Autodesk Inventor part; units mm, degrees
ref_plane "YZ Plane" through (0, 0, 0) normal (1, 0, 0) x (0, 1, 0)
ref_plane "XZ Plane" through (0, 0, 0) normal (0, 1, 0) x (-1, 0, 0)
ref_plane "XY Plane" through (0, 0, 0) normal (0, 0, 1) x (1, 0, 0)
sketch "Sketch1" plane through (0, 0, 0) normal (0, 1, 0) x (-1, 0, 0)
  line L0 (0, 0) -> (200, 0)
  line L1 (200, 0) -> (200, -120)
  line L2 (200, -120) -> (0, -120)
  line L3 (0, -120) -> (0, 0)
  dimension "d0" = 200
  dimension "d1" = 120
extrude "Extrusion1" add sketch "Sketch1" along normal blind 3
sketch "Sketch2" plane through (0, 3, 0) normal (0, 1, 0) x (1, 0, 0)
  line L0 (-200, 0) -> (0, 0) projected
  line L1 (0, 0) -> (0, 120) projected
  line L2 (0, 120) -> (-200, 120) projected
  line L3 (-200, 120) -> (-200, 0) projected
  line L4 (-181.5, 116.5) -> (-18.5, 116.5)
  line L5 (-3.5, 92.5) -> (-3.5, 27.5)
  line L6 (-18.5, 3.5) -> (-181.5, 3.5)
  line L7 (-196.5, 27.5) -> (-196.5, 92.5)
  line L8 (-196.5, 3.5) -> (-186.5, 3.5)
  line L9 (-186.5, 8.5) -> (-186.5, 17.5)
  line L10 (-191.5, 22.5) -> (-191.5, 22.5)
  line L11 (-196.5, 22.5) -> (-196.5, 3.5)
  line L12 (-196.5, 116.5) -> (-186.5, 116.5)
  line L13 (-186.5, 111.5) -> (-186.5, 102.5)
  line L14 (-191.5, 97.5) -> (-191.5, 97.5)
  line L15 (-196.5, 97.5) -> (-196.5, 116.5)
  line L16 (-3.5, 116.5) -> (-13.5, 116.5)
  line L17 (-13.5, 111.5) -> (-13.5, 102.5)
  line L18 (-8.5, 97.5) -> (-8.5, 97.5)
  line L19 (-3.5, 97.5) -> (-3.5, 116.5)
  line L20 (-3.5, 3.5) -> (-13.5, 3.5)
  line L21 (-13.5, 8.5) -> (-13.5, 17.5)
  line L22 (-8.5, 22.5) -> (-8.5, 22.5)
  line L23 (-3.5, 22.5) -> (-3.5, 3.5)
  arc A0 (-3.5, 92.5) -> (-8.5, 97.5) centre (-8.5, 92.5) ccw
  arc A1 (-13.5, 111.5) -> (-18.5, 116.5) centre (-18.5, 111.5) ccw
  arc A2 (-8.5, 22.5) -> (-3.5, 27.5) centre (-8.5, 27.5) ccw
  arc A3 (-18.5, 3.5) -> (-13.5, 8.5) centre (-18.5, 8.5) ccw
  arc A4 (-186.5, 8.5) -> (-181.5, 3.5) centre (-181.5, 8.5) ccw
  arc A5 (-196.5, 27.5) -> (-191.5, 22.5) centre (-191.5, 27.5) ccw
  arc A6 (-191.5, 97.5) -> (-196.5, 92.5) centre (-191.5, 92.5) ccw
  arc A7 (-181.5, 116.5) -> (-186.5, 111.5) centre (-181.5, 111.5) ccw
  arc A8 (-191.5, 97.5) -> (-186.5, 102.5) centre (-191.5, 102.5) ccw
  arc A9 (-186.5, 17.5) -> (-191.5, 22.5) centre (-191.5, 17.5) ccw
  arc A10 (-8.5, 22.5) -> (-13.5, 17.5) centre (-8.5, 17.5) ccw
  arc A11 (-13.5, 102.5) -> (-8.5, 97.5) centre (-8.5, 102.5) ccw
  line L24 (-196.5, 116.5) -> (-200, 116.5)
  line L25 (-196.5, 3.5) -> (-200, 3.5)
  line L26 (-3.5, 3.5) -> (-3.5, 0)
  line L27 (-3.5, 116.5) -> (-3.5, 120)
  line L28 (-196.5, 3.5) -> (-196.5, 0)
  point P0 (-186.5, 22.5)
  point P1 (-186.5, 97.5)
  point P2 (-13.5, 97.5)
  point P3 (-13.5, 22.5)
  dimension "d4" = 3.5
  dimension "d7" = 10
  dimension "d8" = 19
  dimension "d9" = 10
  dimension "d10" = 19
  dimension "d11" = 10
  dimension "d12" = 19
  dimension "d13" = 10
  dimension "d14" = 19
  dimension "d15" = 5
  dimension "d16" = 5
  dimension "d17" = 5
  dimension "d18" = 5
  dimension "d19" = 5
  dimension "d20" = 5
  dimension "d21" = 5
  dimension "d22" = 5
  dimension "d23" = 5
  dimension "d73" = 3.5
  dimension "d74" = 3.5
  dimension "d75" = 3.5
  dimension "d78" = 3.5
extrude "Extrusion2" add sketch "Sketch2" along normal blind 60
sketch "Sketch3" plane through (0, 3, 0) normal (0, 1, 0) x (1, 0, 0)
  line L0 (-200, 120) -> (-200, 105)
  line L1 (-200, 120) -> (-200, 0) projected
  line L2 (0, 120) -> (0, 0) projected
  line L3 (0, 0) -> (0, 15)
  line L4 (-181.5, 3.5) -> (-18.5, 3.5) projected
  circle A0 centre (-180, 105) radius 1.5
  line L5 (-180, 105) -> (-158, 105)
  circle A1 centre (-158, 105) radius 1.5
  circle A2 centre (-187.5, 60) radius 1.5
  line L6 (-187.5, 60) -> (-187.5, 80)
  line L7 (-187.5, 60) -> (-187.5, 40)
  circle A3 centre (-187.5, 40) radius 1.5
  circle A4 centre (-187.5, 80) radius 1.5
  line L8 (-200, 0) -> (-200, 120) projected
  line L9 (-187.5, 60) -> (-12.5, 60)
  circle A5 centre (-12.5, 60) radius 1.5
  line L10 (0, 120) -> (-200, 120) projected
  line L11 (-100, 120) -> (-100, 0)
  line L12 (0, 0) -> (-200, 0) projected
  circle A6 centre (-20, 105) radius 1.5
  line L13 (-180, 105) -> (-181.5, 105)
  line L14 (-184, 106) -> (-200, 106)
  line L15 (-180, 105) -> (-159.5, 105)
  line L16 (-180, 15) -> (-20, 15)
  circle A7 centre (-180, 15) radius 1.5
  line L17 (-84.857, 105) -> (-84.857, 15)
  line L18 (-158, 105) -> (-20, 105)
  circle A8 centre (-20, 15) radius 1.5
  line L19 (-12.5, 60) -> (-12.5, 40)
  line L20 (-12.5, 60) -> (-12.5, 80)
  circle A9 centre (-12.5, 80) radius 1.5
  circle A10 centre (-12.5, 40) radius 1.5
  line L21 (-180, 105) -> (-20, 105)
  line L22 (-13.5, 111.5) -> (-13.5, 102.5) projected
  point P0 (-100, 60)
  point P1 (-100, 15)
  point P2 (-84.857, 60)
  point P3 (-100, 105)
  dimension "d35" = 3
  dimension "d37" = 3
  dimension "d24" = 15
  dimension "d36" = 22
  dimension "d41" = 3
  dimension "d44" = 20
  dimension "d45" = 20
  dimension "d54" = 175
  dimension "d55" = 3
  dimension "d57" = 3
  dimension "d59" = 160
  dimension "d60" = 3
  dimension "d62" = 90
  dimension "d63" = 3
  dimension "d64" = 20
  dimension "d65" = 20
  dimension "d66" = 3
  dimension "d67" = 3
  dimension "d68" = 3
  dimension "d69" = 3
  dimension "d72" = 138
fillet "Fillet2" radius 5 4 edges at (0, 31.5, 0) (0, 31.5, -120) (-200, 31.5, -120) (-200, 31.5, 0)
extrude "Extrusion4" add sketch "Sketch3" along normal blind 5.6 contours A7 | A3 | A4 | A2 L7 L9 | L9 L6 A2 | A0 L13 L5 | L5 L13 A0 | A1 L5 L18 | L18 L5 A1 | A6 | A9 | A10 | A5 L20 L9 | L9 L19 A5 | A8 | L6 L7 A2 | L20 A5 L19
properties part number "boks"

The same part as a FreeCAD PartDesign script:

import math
import FreeCAD as App
import Part
import Sketcher

V = App.Vector
Q = App.Units.Quantity


def edges_at(feature, points):
    """Names of the edges that pass closest to the given points."""
    edges = feature.Shape.Edges
    near = lambda p: min(range(len(edges)), key=lambda i: edges[i].distToShape(Part.Vertex(*p))[0])
    return sorted({f"Edge{near(p) + 1}" for p in points})

doc = App.newDocument("Part")
body = doc.addObject("PartDesign::Body", "Body")

# Sketch on XZ plane
sketch1 = body.newObject("Sketcher::SketchObject", "Sketch")
sketch1.AttachmentSupport = (doc.getObject("XZ_Plane"), [""])
sketch1.MapMode = "FlatFace"
sketch1.addGeometry(Part.LineSegment(V(-200, 0, 0), V(0, 0, 0)), False)
sketch1.addGeometry(Part.LineSegment(V(0, 0, 0), V(0, -120, 0)), False)
sketch1.addGeometry(Part.LineSegment(V(0, -120, 0), V(-200, -120, 0)), False)
sketch1.addGeometry(Part.LineSegment(V(-200, -120, 0), V(-200, 0, 0)), False)
sketch1.addConstraint(Sketcher.Constraint("Coincident", 0, 2, 1, 1))
sketch1.addConstraint(Sketcher.Constraint("Coincident", 1, 2, 2, 1))
sketch1.addConstraint(Sketcher.Constraint("Coincident", 2, 2, 3, 1))
sketch1.addConstraint(Sketcher.Constraint("Coincident", 3, 2, 0, 1))
sketch1.addConstraint(Sketcher.Constraint("Horizontal", 0))
sketch1.addConstraint(Sketcher.Constraint("Vertical", 1))
sketch1.addConstraint(Sketcher.Constraint("Horizontal", 2))
sketch1.addConstraint(Sketcher.Constraint("Vertical", 3))
sketch1.addConstraint(Sketcher.Constraint("Coincident", 0, 2, -1, 1))
sketch1.addConstraint(Sketcher.Constraint("DistanceX", 0, 1, 0, 2, Q("200 mm")))
sketch1.addConstraint(Sketcher.Constraint("DistanceY", 1, 2, 1, 1, Q("120 mm")))
pad1 = body.newObject("PartDesign::Pad", "Pad")
pad1.Profile = sketch1
pad1.Length = 3
pad1.Reversed = True

# Sketch on XZ plane
sketch2 = body.newObject("Sketcher::SketchObject", "Sketch001")
sketch2.AttachmentSupport = (doc.getObject("XZ_Plane"), [""])
sketch2.MapMode = "FlatFace"
sketch2.AttachmentOffset = App.Placement(V(0, 0, -3), App.Rotation())
sketch2.addGeometry(Part.LineSegment(V(-200, 0, 0), V(0, 0, 0)), False)
sketch2.addGeometry(Part.LineSegment(V(0, 0, 0), V(0, -120, 0)), False)
sketch2.addGeometry(Part.LineSegment(V(0, -120, 0), V(-200, -120, 0)), False)
sketch2.addGeometry(Part.LineSegment(V(-200, -120, 0), V(-200, 0, 0)), False)
sketch2.addGeometry(Part.ArcOfCircle(Part.Circle(V(-18, -112, 0), V(0, 0, 1), 5), math.radians(-90), math.radians(0)), False)
sketch2.addGeometry(Part.LineSegment(V(-14, -112, 0), V(-14, -102, 0)), False)
sketch2.addGeometry(Part.ArcOfCircle(Part.Circle(V(-8, -102, 0), V(0, 0, 1), 5), math.radians(90), math.radians(180)), False)
sketch2.addGeometry(Part.ArcOfCircle(Part.Circle(V(-8, -92, 0), V(0, 0, 1), 5), math.radians(-90), math.radians(0)), False)
sketch2.addGeometry(Part.LineSegment(V(-4, -92, 0), V(-4, -28, 0)), False)
sketch2.addGeometry(Part.ArcOfCircle(Part.Circle(V(-8, -28, 0), V(0, 0, 1), 5), math.radians(0), math.radians(90)), False)
sketch2.addGeometry(Part.ArcOfCircle(Part.Circle(V(-8, -18, 0), V(0, 0, 1), 5), math.radians(180), math.radians(270)), False)
sketch2.addGeometry(Part.LineSegment(V(-14, -18, 0), V(-14, -8, 0)), False)
sketch2.addGeometry(Part.ArcOfCircle(Part.Circle(V(-18, -8, 0), V(0, 0, 1), 5), math.radians(0), math.radians(90)), False)
sketch2.addGeometry(Part.LineSegment(V(-18, -4, 0), V(-182, -4, 0)), False)
sketch2.addGeometry(Part.ArcOfCircle(Part.Circle(V(-182, -8, 0), V(0, 0, 1), 5), math.radians(90), math.radians(180)), False)
sketch2.addGeometry(Part.LineSegment(V(-186, -8, 0), V(-186, -18, 0)), False)
sketch2.addGeometry(Part.ArcOfCircle(Part.Circle(V(-192, -18, 0), V(0, 0, 1), 5), math.radians(-90), math.radians(0)), False)
sketch2.addGeometry(Part.ArcOfCircle(Part.Circle(V(-192, -28, 0), V(0, 0, 1), 5), math.radians(90), math.radians(180)), False)
sketch2.addGeometry(Part.LineSegment(V(-196, -28, 0), V(-196, -92, 0)), False)
sketch2.addGeometry(Part.ArcOfCircle(Part.Circle(V(-192, -92, 0), V(0, 0, 1), 5), math.radians(180), math.radians(270)), False)
sketch2.addGeometry(Part.ArcOfCircle(Part.Circle(V(-192, -102, 0), V(0, 0, 1), 5), math.radians(0), math.radians(90)), False)
sketch2.addGeometry(Part.LineSegment(V(-186, -102, 0), V(-186, -112, 0)), False)
sketch2.addGeometry(Part.ArcOfCircle(Part.Circle(V(-182, -112, 0), V(0, 0, 1), 5), math.radians(180), math.radians(270)), False)
sketch2.addGeometry(Part.LineSegment(V(-182, -116, 0), V(-18, -116, 0)), False)
sketch2.addConstraint(Sketcher.Constraint("Coincident", 0, 2, 1, 1))
sketch2.addConstraint(Sketcher.Constraint("Coincident", 1, 2, 2, 1))
sketch2.addConstraint(Sketcher.Constraint("Coincident", 2, 2, 3, 1))
sketch2.addConstraint(Sketcher.Constraint("Coincident", 3, 2, 0, 1))
sketch2.addConstraint(Sketcher.Constraint("Tangent", 4, 2, 5, 1))
sketch2.addConstraint(Sketcher.Constraint("Tangent", 5, 2, 6, 2))
sketch2.addConstraint(Sketcher.Constraint("Tangent", 6, 1, 7, 1))
sketch2.addConstraint(Sketcher.Constraint("Tangent", 7, 2, 8, 1))
sketch2.addConstraint(Sketcher.Constraint("Tangent", 8, 2, 9, 1))
sketch2.addConstraint(Sketcher.Constraint("Tangent", 9, 2, 10, 2))
sketch2.addConstraint(Sketcher.Constraint("Tangent", 10, 1, 11, 1))
sketch2.addConstraint(Sketcher.Constraint("Tangent", 11, 2, 12, 1))
sketch2.addConstraint(Sketcher.Constraint("Tangent", 12, 2, 13, 1))
sketch2.addConstraint(Sketcher.Constraint("Tangent", 13, 2, 14, 1))
sketch2.addConstraint(Sketcher.Constraint("Tangent", 14, 2, 15, 1))
sketch2.addConstraint(Sketcher.Constraint("Tangent", 15, 2, 16, 2))
sketch2.addConstraint(Sketcher.Constraint("Tangent", 16, 1, 17, 1))
sketch2.addConstraint(Sketcher.Constraint("Tangent", 17, 2, 18, 1))
sketch2.addConstraint(Sketcher.Constraint("Tangent", 18, 2, 19, 1))
sketch2.addConstraint(Sketcher.Constraint("Tangent", 19, 2, 20, 2))
sketch2.addConstraint(Sketcher.Constraint("Tangent", 20, 1, 21, 1))
sketch2.addConstraint(Sketcher.Constraint("Tangent", 21, 2, 22, 1))
sketch2.addConstraint(Sketcher.Constraint("Tangent", 22, 2, 23, 1))
sketch2.addConstraint(Sketcher.Constraint("Tangent", 23, 2, 4, 1))
sketch2.addConstraint(Sketcher.Constraint("Horizontal", 0))
sketch2.addConstraint(Sketcher.Constraint("Vertical", 1))
sketch2.addConstraint(Sketcher.Constraint("Horizontal", 2))
sketch2.addConstraint(Sketcher.Constraint("Vertical", 3))
sketch2.addConstraint(Sketcher.Constraint("Vertical", 5))
sketch2.addConstraint(Sketcher.Constraint("Vertical", 8))
sketch2.addConstraint(Sketcher.Constraint("Vertical", 11))
sketch2.addConstraint(Sketcher.Constraint("Horizontal", 13))
sketch2.addConstraint(Sketcher.Constraint("Vertical", 15))
sketch2.addConstraint(Sketcher.Constraint("Vertical", 18))
sketch2.addConstraint(Sketcher.Constraint("Vertical", 21))
sketch2.addConstraint(Sketcher.Constraint("Horizontal", 23))
sketch2.addConstraint(Sketcher.Constraint("Coincident", 0, 2, -1, 1))
sketch2.addConstraint(Sketcher.Constraint("Equal", 4, 6))
sketch2.addConstraint(Sketcher.Constraint("Equal", 6, 7))
sketch2.addConstraint(Sketcher.Constraint("Equal", 7, 9))
sketch2.addConstraint(Sketcher.Constraint("Equal", 9, 10))
sketch2.addConstraint(Sketcher.Constraint("Equal", 10, 12))
sketch2.addConstraint(Sketcher.Constraint("Equal", 12, 14))
sketch2.addConstraint(Sketcher.Constraint("Equal", 14, 16))
sketch2.addConstraint(Sketcher.Constraint("Equal", 16, 17))
sketch2.addConstraint(Sketcher.Constraint("Equal", 17, 19))
sketch2.addConstraint(Sketcher.Constraint("Equal", 19, 20))
sketch2.addConstraint(Sketcher.Constraint("Equal", 20, 22))
sketch2.addConstraint(Sketcher.Constraint("Horizontal", 10, 3, 16, 3))
sketch2.addConstraint(Sketcher.Constraint("Horizontal", 7, 3, 19, 3))
sketch2.addConstraint(Sketcher.Constraint("Vertical", 6, 3, 7, 3))
sketch2.addConstraint(Sketcher.Constraint("Vertical", 9, 3, 10, 3))
sketch2.addConstraint(Sketcher.Constraint("Vertical", 16, 3, 17, 3))
sketch2.addConstraint(Sketcher.Constraint("Vertical", 19, 3, 20, 3))
sketch2.addConstraint(Sketcher.Constraint("Equal", 5, 11))
sketch2.addConstraint(Sketcher.Constraint("Radius", 4, Q("5 mm")))
sketch2.addConstraint(Sketcher.Constraint("DistanceY", 4, 3, 7, 3, Q("19 mm")))
sketch2.addConstraint(Sketcher.Constraint("DistanceX", 7, 2, -1, 1, Q("3.5 mm")))
sketch2.addConstraint(Sketcher.Constraint("DistanceY", 12, 2, -1, 1, Q("3.5 mm")))
sketch2.addConstraint(Sketcher.Constraint("DistanceX", 2, 2, 18, 2, Q("3.5 mm")))
sketch2.addConstraint(Sketcher.Constraint("DistanceY", 2, 2, 22, 2, Q("3.5 mm")))
sketch2.addConstraint(Sketcher.Constraint("DistanceX", 0, 1, 0, 2, Q("200 mm")))
sketch2.addConstraint(Sketcher.Constraint("DistanceY", 1, 2, 1, 1, Q("120 mm")))
pad2 = body.newObject("PartDesign::Pad", "Pad001")
pad2.Profile = sketch2
pad2.Length = 60
pad2.Reversed = True
doc.recompute()

fillet = body.newObject("PartDesign::Fillet", "Fillet")
fillet.Base = (pad2, edges_at(pad2, [
    (0, 31.5, 0),
    (0, 31.5, -120),
    (-200, 31.5, -120),
    (-200, 31.5, 0),
]))
fillet.Radius = 5

# Sketch on XZ plane
sketch3 = body.newObject("Sketcher::SketchObject", "Sketch002")
sketch3.AttachmentSupport = (doc.getObject("XZ_Plane"), [""])
sketch3.MapMode = "FlatFace"
sketch3.AttachmentOffset = App.Placement(V(0, 0, -3), App.Rotation())
sketch3.addGeometry(Part.Circle(V(-180, -15, 0), V(0, 0, 1), 1.5), False)
sketch3.addGeometry(Part.Circle(V(-187.5, -40, 0), V(0, 0, 1), 1.5), False)
sketch3.addGeometry(Part.Circle(V(-187.5, -80, 0), V(0, 0, 1), 1.5), False)
sketch3.addGeometry(Part.Circle(V(-187.5, -60, 0), V(0, 0, 1), 1.5), False)
sketch3.addGeometry(Part.Circle(V(-180, -105, 0), V(0, 0, 1), 1.5), False)
sketch3.addGeometry(Part.Circle(V(-158, -105, 0), V(0, 0, 1), 1.5), False)
sketch3.addGeometry(Part.Circle(V(-20, -105, 0), V(0, 0, 1), 1.5), False)
sketch3.addGeometry(Part.Circle(V(-12.5, -80, 0), V(0, 0, 1), 1.5), False)
sketch3.addGeometry(Part.Circle(V(-12.5, -40, 0), V(0, 0, 1), 1.5), False)
sketch3.addGeometry(Part.Circle(V(-12.5, -60, 0), V(0, 0, 1), 1.5), False)
sketch3.addGeometry(Part.Circle(V(-20, -15, 0), V(0, 0, 1), 1.5), False)
sketch3.addConstraint(Sketcher.Constraint("Equal", 0, 1))
sketch3.addConstraint(Sketcher.Constraint("Equal", 1, 2))
sketch3.addConstraint(Sketcher.Constraint("Equal", 2, 3))
sketch3.addConstraint(Sketcher.Constraint("Equal", 3, 4))
sketch3.addConstraint(Sketcher.Constraint("Equal", 4, 5))
sketch3.addConstraint(Sketcher.Constraint("Equal", 5, 6))
sketch3.addConstraint(Sketcher.Constraint("Equal", 6, 7))
sketch3.addConstraint(Sketcher.Constraint("Equal", 7, 8))
sketch3.addConstraint(Sketcher.Constraint("Equal", 8, 9))
sketch3.addConstraint(Sketcher.Constraint("Equal", 9, 10))
sketch3.addConstraint(Sketcher.Constraint("Horizontal", 4, 3, 5, 3))
sketch3.addConstraint(Sketcher.Constraint("Horizontal", 5, 3, 6, 3))
sketch3.addConstraint(Sketcher.Constraint("Horizontal", 2, 3, 7, 3))
sketch3.addConstraint(Sketcher.Constraint("Horizontal", 1, 3, 8, 3))
sketch3.addConstraint(Sketcher.Constraint("Horizontal", 3, 3, 9, 3))
sketch3.addConstraint(Sketcher.Constraint("Horizontal", 0, 3, 10, 3))
sketch3.addConstraint(Sketcher.Constraint("Vertical", 1, 3, 2, 3))
sketch3.addConstraint(Sketcher.Constraint("Vertical", 2, 3, 3, 3))
sketch3.addConstraint(Sketcher.Constraint("Vertical", 0, 3, 4, 3))
sketch3.addConstraint(Sketcher.Constraint("Vertical", 7, 3, 8, 3))
sketch3.addConstraint(Sketcher.Constraint("Vertical", 8, 3, 9, 3))
sketch3.addConstraint(Sketcher.Constraint("Vertical", 6, 3, 10, 3))
sketch3.addConstraint(Sketcher.Constraint("Diameter", 0, Q("3 mm")))
sketch3.addConstraint(Sketcher.Constraint("DistanceY", 0, 3, -1, 1, Q("15 mm")))
sketch3.addConstraint(Sketcher.Constraint("DistanceX", 6, 3, -1, 1, Q("20 mm")))
sketch3.addConstraint(Sketcher.Constraint("DistanceY", 3, 3, 1, 3, Q("20 mm")))
sketch3.addConstraint(Sketcher.Constraint("DistanceY", 2, 3, 3, 3, Q("20 mm")))
sketch3.addConstraint(Sketcher.Constraint("DistanceY", 4, 3, 0, 3, Q("90 mm")))
sketch3.addConstraint(Sketcher.Constraint("DistanceX", 4, 3, 5, 3, Q("22 mm")))
sketch3.addConstraint(Sketcher.Constraint("DistanceX", 5, 3, 6, 3, Q("138 mm")))
sketch3.addConstraint(Sketcher.Constraint("DistanceX", 2, 3, 7, 3, Q("175 mm")))
sketch3.addConstraint(Sketcher.Constraint("DistanceY", 1, 3, -1, 1, Q("40 mm")))
sketch3.addConstraint(Sketcher.Constraint("DistanceX", 1, 3, -1, 1, Q("187.5 mm")))
pad3 = body.newObject("PartDesign::Pad", "Pad002")
pad3.Profile = sketch3
pad3.Length = 5.6
pad3.Reversed = True

doc.recompute()
